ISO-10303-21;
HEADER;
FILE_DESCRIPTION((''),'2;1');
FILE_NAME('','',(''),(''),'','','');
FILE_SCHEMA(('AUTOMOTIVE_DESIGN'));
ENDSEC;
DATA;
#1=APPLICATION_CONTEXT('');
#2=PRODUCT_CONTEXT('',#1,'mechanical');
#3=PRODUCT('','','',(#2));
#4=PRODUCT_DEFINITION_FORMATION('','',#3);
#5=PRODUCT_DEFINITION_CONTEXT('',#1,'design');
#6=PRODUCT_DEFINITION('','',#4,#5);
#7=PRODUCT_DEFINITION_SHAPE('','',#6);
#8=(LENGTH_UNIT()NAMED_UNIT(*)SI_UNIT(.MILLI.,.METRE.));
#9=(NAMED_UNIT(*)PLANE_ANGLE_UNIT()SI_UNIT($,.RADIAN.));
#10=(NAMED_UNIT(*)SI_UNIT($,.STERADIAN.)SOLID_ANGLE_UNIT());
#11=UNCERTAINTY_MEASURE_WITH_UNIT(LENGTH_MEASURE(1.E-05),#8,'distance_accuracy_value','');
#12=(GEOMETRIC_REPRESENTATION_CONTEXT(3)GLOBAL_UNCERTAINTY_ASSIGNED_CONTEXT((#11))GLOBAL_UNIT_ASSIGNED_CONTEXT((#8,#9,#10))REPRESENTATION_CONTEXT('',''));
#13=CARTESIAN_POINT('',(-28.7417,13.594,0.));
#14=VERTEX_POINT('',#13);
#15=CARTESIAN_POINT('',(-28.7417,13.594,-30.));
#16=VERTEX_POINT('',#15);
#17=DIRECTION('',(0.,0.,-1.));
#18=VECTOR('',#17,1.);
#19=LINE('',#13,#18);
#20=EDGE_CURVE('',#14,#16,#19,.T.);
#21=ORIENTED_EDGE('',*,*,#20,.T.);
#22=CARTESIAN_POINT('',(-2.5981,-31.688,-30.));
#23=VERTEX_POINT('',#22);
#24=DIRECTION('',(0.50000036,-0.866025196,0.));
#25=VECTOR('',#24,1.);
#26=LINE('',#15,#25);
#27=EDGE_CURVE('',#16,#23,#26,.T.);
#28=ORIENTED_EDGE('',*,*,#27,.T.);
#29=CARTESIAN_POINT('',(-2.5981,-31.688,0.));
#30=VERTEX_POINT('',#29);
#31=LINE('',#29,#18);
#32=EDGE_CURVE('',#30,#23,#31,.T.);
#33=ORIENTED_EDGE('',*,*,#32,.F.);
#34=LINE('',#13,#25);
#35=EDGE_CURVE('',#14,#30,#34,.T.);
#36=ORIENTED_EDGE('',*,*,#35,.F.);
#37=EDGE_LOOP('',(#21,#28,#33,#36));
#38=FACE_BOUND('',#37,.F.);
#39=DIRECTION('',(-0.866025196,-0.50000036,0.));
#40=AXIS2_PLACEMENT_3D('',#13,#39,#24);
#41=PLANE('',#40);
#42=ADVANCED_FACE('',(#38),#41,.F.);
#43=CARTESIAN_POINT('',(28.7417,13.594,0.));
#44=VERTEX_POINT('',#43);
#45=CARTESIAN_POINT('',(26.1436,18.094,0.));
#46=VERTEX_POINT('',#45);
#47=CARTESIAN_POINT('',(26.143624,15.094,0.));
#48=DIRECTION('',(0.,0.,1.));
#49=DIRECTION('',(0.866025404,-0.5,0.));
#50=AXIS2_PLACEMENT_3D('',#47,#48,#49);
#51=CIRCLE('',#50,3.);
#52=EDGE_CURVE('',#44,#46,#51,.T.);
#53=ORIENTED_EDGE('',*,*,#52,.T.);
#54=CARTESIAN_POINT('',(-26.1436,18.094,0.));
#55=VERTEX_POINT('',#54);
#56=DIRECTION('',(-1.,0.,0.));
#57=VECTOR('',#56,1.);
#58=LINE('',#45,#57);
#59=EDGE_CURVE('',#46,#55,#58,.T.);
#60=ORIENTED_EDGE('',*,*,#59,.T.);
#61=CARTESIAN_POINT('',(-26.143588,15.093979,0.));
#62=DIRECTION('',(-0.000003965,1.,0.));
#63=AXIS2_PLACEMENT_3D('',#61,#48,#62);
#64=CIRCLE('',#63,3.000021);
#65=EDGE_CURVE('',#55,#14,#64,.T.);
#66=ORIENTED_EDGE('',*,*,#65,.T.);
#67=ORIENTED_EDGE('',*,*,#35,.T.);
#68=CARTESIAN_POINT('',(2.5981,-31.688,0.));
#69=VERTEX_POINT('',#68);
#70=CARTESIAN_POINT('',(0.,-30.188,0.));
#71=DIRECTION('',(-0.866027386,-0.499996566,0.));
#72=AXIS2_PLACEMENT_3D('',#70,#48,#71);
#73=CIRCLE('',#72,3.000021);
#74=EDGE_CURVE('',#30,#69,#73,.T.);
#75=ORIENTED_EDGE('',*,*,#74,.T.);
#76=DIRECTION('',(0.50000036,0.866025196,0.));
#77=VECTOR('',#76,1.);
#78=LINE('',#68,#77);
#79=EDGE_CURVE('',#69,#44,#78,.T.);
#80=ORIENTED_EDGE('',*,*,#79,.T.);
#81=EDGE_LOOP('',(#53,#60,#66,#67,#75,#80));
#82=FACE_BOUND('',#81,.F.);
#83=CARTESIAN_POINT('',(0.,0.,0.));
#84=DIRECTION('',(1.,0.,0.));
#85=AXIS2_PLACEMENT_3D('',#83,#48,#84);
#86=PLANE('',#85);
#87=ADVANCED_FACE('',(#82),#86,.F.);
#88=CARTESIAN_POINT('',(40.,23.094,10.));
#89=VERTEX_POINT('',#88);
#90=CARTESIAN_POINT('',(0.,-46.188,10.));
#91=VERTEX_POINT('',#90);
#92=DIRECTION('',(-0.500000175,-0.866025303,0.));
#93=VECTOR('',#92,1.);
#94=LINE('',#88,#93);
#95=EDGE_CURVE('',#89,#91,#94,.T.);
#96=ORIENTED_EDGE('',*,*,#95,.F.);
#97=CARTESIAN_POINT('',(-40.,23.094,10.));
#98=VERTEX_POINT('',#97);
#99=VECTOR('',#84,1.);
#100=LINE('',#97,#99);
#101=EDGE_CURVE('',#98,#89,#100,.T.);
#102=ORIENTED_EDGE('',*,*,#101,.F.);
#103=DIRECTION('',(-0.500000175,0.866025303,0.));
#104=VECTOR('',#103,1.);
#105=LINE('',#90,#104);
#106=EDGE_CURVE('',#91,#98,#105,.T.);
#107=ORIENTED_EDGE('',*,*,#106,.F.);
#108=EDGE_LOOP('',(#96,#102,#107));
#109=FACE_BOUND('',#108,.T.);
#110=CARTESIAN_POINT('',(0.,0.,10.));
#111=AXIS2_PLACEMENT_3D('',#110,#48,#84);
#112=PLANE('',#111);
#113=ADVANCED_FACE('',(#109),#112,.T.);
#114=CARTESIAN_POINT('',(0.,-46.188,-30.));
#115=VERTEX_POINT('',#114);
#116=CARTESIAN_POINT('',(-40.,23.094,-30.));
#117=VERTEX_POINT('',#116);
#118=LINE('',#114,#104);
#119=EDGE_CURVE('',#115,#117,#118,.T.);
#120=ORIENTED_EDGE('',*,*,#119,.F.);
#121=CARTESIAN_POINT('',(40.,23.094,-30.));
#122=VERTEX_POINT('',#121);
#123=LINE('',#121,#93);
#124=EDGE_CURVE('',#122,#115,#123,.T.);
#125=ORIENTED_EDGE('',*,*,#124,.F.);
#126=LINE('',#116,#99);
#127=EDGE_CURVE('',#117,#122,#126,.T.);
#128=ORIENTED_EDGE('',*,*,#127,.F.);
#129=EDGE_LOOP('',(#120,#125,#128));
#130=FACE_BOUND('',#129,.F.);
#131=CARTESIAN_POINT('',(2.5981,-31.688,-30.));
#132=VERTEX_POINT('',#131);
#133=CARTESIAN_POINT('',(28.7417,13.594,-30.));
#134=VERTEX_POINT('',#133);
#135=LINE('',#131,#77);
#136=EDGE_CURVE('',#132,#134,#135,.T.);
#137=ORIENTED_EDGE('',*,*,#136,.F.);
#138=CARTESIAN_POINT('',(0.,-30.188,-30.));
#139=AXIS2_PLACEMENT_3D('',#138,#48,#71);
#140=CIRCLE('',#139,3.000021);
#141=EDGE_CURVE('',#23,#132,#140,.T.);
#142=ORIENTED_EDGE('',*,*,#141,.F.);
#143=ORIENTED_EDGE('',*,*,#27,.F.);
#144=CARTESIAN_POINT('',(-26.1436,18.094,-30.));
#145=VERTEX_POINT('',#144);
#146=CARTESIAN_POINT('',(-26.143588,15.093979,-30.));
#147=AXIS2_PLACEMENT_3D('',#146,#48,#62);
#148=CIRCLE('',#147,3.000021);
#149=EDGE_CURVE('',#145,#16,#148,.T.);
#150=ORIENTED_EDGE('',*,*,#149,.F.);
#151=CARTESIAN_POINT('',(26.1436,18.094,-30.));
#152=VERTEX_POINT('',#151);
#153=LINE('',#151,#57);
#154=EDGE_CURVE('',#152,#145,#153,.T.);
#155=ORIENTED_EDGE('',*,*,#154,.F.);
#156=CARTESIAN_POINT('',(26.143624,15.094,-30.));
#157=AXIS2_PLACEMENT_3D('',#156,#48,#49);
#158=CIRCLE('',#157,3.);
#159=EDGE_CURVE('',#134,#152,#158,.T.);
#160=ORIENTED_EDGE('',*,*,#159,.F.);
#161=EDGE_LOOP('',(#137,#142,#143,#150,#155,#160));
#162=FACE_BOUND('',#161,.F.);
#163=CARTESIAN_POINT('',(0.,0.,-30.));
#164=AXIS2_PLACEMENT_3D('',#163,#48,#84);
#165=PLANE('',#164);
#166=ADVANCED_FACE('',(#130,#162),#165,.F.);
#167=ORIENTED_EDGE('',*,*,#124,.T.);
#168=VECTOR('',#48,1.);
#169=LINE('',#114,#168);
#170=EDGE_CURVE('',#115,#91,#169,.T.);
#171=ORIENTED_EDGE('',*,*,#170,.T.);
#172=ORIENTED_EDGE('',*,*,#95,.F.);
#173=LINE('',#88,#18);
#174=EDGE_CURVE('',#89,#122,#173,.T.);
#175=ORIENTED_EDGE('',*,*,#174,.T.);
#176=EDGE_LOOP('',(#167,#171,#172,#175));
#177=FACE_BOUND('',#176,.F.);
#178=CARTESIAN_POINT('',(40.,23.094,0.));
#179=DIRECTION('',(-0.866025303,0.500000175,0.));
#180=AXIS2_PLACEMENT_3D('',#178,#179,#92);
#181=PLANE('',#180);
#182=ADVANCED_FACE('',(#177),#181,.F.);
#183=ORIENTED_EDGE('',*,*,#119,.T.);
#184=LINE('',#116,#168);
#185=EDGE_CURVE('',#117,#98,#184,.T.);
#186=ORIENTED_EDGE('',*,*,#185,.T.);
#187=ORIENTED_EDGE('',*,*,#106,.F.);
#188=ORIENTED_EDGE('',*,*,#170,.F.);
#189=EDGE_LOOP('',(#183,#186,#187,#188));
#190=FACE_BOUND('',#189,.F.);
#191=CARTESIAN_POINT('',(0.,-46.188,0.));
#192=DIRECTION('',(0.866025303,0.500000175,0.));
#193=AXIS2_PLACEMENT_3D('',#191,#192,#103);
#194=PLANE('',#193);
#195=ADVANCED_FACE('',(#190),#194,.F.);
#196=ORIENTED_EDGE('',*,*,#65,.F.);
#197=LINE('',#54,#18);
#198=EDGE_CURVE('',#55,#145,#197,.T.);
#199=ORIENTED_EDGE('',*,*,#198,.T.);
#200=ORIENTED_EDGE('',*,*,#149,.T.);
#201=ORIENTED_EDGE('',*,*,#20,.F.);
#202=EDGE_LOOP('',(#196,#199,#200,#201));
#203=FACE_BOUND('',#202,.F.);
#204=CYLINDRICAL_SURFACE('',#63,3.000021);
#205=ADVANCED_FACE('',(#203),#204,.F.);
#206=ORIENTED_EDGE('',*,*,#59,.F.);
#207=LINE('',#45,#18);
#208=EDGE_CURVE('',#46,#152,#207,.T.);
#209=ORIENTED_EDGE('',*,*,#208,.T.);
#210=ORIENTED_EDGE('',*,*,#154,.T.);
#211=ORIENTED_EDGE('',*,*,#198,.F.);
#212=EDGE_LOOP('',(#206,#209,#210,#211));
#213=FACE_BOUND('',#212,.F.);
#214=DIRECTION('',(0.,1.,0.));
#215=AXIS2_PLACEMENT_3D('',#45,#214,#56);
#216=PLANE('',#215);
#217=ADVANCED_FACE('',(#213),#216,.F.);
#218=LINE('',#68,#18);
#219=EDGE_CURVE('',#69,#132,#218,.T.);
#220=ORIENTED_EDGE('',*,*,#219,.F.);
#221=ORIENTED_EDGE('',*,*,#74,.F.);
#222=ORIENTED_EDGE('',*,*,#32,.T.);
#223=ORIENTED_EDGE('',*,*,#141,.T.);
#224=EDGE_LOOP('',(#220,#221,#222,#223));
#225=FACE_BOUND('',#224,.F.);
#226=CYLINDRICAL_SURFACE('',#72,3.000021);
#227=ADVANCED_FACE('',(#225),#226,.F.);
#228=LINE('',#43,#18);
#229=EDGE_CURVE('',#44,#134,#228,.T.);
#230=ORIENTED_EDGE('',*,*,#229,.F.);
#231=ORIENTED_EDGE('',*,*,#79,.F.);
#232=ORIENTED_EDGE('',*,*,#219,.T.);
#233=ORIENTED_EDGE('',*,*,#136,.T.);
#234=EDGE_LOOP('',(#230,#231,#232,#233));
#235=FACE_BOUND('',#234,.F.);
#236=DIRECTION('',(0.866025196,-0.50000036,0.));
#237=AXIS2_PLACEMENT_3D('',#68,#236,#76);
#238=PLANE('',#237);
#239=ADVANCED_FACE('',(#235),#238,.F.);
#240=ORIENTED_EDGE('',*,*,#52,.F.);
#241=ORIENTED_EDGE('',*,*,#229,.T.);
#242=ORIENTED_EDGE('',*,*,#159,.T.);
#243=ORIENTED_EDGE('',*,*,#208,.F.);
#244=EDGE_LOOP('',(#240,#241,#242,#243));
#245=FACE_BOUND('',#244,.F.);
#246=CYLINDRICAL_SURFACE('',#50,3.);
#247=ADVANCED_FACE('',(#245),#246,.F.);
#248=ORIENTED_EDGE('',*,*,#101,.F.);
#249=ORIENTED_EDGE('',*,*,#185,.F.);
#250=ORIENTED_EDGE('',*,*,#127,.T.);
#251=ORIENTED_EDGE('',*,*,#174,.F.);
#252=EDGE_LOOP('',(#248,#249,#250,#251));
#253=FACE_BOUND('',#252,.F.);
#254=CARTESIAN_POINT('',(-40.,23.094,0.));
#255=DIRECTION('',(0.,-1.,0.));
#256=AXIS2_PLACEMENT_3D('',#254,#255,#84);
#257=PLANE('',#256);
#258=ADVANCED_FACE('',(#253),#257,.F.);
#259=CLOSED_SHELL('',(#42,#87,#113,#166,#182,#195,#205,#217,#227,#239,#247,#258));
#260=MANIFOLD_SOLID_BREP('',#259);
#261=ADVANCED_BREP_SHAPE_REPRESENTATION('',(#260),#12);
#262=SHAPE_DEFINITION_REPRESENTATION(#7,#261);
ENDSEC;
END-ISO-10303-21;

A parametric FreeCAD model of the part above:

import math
import FreeCAD as App
import Part
import Sketcher

doc = App.newDocument("Part")
body = doc.addObject("PartDesign::Body", "Body")

# Sketch on XY plane
sketch1 = body.newObject("Sketcher::SketchObject", "Sketch")
sketch1.AttachmentSupport = (doc.getObject("XY_Plane"), [""])
sketch1.MapMode = "FlatFace"
sketch1.addGeometry(Part.LineSegment(App.Vector(40, 23, 0), App.Vector(-40, 23, 0)), False)
sketch1.addGeometry(Part.LineSegment(App.Vector(-40, 23, 0), App.Vector(0, -46, 0)), False)
sketch1.addGeometry(Part.LineSegment(App.Vector(0, -46, 0), App.Vector(40, 23, 0)), False)
sketch1.addConstraint(Sketcher.Constraint("Coincident", 0, 2, 1, 1))
sketch1.addConstraint(Sketcher.Constraint("Coincident", 1, 2, 2, 1))
sketch1.addConstraint(Sketcher.Constraint("Coincident", 2, 2, 0, 1))
sketch1.addConstraint(Sketcher.Constraint("Horizontal", 0))
sketch1.addConstraint(Sketcher.Constraint("PointOnObject", 1, 2, -2))
sketch1.addConstraint(Sketcher.Constraint("Equal", 1, 2))
sketch1.addConstraint(Sketcher.Constraint("DistanceX", 0, 2, 0, 1, 80.0))
sketch1.addConstraint(Sketcher.Constraint("Distance", 1, 80.0))
sketch1.addConstraint(Sketcher.Constraint("DistanceY", -1, 1, 0, 2, 23.094))
pad1 = body.newObject("PartDesign::Pad", "Pad")
pad1.Profile = sketch1
pad1.Length = 10

# Sketch on XY plane
sketch2 = body.newObject("Sketcher::SketchObject", "Sketch001")
sketch2.AttachmentSupport = (doc.getObject("XY_Plane"), [""])
sketch2.MapMode = "FlatFace"
sketch2.addGeometry(Part.LineSegment(App.Vector(40, 23.1, 0), App.Vector(-40, 23.1, 0)), False)
sketch2.addGeometry(Part.LineSegment(App.Vector(-40, 23.1, 0), App.Vector(0, -46.2, 0)), False)
sketch2.addGeometry(Part.LineSegment(App.Vector(0, -46.2, 0), App.Vector(40, 23.1, 0)), False)
sketch2.addGeometry(Part.LineSegment(App.Vector(-26.1, 18.1, 0), App.Vector(26.1, 18.1, 0)), False)
sketch2.addGeometry(Part.ArcOfCircle(Part.Circle(App.Vector(26.1, 15.1, 0), App.Vector(0, 0, 1), 3), math.radians(-30), math.radians(90)), False)
sketch2.addGeometry(Part.LineSegment(App.Vector(28.7, 13.6, 0), App.Vector(2.6, -31.7, 0)), False)
sketch2.addGeometry(Part.ArcOfCircle(Part.Circle(App.Vector(0, -30.2, 0), App.Vector(0, 0, 1), 3), math.radians(-150), math.radians(-30)), False)
sketch2.addGeometry(Part.LineSegment(App.Vector(-2.6, -31.7, 0), App.Vector(-28.7, 13.6, 0)), False)
sketch2.addGeometry(Part.ArcOfCircle(Part.Circle(App.Vector(-26.1, 15.1, 0), App.Vector(0, 0, 1), 3), math.radians(90), math.radians(210)), False)
sketch2.addConstraint(Sketcher.Constraint("Coincident", 0, 2, 1, 1))
sketch2.addConstraint(Sketcher.Constraint("Coincident", 1, 2, 2, 1))
sketch2.addConstraint(Sketcher.Constraint("Coincident", 2, 2, 0, 1))
sketch2.addConstraint(Sketcher.Constraint("Tangent", 3, 2, 4, 2))
sketch2.addConstraint(Sketcher.Constraint("Tangent", 4, 1, 5, 1))
sketch2.addConstraint(Sketcher.Constraint("Tangent", 5, 2, 6, 2))
sketch2.addConstraint(Sketcher.Constraint("Tangent", 6, 1, 7, 1))
sketch2.addConstraint(Sketcher.Constraint("Tangent", 7, 2, 8, 2))
sketch2.addConstraint(Sketcher.Constraint("Tangent", 8, 1, 3, 1))
sketch2.addConstraint(Sketcher.Constraint("Horizontal", 0))
sketch2.addConstraint(Sketcher.Constraint("Horizontal", 3))
sketch2.addConstraint(Sketcher.Constraint("Equal", 4, 6))
sketch2.addConstraint(Sketcher.Constraint("Equal", 6, 8))
sketch2.addConstraint(Sketcher.Constraint("Symmetric", 5, 2, 6, 1, -2))
sketch2.addConstraint(Sketcher.Constraint("PointOnObject", 1, 2, -2))
sketch2.addConstraint(Sketcher.Constraint("Parallel", 2, 5))
sketch2.addConstraint(Sketcher.Constraint("Parallel", 1, 7))
sketch2.addConstraint(Sketcher.Constraint("Radius", 4, 3.0))
sketch2.addConstraint(Sketcher.Constraint("DistanceX", 0, 2, 0, 1, 80.0))
sketch2.addConstraint(Sketcher.Constraint("Distance", 1, 80.0))
sketch2.addConstraint(Sketcher.Constraint("DistanceY", 3, 2, 2, 2, 5.0))
sketch2.addConstraint(Sketcher.Constraint("DistanceY", 1, 2, 6, 3, 16.0))
sketch2.addConstraint(Sketcher.Constraint("DistanceY", -1, 1, 4, 3, 15.094))
pad2 = body.newObject("PartDesign::Pad", "Pad001")
pad2.Profile = sketch2
pad2.Length = 30
pad2.Reversed = True

doc.recompute()
